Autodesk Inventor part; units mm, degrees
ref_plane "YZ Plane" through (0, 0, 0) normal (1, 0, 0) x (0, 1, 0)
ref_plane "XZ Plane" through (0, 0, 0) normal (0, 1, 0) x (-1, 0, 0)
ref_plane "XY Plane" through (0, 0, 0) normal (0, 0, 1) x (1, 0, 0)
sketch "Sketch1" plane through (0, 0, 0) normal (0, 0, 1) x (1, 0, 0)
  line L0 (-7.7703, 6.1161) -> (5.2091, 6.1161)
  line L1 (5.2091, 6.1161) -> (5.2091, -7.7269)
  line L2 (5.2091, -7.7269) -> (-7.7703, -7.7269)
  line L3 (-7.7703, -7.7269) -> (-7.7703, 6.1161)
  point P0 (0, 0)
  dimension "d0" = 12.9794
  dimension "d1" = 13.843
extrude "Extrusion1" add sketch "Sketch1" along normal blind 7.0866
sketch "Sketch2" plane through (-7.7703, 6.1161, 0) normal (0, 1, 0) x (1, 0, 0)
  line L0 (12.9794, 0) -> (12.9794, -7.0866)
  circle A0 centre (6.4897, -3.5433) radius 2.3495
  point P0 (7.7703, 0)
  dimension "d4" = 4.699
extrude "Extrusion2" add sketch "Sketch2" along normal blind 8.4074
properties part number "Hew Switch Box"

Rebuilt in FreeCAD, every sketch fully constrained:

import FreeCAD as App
import Part
import Sketcher
from FreeCAD import Vector
Q = App.Units.Quantity


def add_polygon(sketch, points):
    """Adds a closed chain of lines whose ends are joined by coincident constraints."""
    first, n = sketch.GeometryCount, len(points)
    for a, b in zip(points, points[1:] + points[:1]):
        sketch.addGeometry(Part.LineSegment(App.Vector(*a, 0), App.Vector(*b, 0)), False)
    for i in range(n):
        sketch.addConstraint(Sketcher.Constraint("Coincident", first + i, 2, first + (i + 1) % n, 1))

doc = App.newDocument("Part")
body = doc.addObject("PartDesign::Body", "Body")

# Sketch on XY plane
sketch1 = doc.addObject("Sketcher::SketchObject", "Sketch")
body.addObject(sketch1)
sketch1.AttachmentSupport = (doc.XY_Plane, [""])
sketch1.MapMode = "FlatFace"
add_polygon(sketch1, [(5.2091, 6.1161), (-7.7703, 6.1161), (-7.7703, -7.7269), (5.2091, -7.7269)])  # lines 0-3
sketch1.addConstraint([
    Sketcher.Constraint("Horizontal", 0),
    Sketcher.Constraint("Vertical", 1),
    Sketcher.Constraint("Horizontal", 2),
    Sketcher.Constraint("Vertical", 3),
    Sketcher.Constraint("DistanceX", 0, 2, 0, 1, Q("0.511 in")),
    Sketcher.Constraint("DistanceY", 1, 2, 1, 1, Q("0.545 in")),
    Sketcher.Constraint("DistanceY", -1, 1, 0, 2, Q("0.2408 in")),
    Sketcher.Constraint("DistanceX", 0, 2, -1, 1, Q("7.7703 mm")),
])
pad1 = doc.addObject("PartDesign::Pad", "Pad")
body.addObject(pad1)
pad1.Profile = sketch1
pad1.Length = Q("0.279 in")

# Sketch on XZ plane
sketch2 = doc.addObject("Sketcher::SketchObject", "Sketch001")
body.addObject(sketch2)
sketch2.AttachmentSupport = (doc.XZ_Plane, [""])
sketch2.MapMode = "FlatFace"
sketch2.AttachmentOffset = App.Placement(Vector(0, 0, -0.2407913 * 25.4), App.Rotation())
sketch2.addGeometry(Part.Circle(Vector(-1.2806, 3.5433, 0), Vector(0, 0, 1), 2.3495), False)
sketch2.addConstraint([
    Sketcher.Constraint("Diameter", 0, Q("0.185 in")),
    Sketcher.Constraint("DistanceY", -1, 1, 0, 3, Q("0.1395 in")),
    Sketcher.Constraint("DistanceX", 0, 3, -1, 1, Q("1.2806 mm")),
])
pad2 = doc.addObject("PartDesign::Pad", "Pad001")
body.addObject(pad2)
pad2.Profile = sketch2
pad2.Length = Q("0.331 in")
pad2.Reversed = True

doc.recompute()
